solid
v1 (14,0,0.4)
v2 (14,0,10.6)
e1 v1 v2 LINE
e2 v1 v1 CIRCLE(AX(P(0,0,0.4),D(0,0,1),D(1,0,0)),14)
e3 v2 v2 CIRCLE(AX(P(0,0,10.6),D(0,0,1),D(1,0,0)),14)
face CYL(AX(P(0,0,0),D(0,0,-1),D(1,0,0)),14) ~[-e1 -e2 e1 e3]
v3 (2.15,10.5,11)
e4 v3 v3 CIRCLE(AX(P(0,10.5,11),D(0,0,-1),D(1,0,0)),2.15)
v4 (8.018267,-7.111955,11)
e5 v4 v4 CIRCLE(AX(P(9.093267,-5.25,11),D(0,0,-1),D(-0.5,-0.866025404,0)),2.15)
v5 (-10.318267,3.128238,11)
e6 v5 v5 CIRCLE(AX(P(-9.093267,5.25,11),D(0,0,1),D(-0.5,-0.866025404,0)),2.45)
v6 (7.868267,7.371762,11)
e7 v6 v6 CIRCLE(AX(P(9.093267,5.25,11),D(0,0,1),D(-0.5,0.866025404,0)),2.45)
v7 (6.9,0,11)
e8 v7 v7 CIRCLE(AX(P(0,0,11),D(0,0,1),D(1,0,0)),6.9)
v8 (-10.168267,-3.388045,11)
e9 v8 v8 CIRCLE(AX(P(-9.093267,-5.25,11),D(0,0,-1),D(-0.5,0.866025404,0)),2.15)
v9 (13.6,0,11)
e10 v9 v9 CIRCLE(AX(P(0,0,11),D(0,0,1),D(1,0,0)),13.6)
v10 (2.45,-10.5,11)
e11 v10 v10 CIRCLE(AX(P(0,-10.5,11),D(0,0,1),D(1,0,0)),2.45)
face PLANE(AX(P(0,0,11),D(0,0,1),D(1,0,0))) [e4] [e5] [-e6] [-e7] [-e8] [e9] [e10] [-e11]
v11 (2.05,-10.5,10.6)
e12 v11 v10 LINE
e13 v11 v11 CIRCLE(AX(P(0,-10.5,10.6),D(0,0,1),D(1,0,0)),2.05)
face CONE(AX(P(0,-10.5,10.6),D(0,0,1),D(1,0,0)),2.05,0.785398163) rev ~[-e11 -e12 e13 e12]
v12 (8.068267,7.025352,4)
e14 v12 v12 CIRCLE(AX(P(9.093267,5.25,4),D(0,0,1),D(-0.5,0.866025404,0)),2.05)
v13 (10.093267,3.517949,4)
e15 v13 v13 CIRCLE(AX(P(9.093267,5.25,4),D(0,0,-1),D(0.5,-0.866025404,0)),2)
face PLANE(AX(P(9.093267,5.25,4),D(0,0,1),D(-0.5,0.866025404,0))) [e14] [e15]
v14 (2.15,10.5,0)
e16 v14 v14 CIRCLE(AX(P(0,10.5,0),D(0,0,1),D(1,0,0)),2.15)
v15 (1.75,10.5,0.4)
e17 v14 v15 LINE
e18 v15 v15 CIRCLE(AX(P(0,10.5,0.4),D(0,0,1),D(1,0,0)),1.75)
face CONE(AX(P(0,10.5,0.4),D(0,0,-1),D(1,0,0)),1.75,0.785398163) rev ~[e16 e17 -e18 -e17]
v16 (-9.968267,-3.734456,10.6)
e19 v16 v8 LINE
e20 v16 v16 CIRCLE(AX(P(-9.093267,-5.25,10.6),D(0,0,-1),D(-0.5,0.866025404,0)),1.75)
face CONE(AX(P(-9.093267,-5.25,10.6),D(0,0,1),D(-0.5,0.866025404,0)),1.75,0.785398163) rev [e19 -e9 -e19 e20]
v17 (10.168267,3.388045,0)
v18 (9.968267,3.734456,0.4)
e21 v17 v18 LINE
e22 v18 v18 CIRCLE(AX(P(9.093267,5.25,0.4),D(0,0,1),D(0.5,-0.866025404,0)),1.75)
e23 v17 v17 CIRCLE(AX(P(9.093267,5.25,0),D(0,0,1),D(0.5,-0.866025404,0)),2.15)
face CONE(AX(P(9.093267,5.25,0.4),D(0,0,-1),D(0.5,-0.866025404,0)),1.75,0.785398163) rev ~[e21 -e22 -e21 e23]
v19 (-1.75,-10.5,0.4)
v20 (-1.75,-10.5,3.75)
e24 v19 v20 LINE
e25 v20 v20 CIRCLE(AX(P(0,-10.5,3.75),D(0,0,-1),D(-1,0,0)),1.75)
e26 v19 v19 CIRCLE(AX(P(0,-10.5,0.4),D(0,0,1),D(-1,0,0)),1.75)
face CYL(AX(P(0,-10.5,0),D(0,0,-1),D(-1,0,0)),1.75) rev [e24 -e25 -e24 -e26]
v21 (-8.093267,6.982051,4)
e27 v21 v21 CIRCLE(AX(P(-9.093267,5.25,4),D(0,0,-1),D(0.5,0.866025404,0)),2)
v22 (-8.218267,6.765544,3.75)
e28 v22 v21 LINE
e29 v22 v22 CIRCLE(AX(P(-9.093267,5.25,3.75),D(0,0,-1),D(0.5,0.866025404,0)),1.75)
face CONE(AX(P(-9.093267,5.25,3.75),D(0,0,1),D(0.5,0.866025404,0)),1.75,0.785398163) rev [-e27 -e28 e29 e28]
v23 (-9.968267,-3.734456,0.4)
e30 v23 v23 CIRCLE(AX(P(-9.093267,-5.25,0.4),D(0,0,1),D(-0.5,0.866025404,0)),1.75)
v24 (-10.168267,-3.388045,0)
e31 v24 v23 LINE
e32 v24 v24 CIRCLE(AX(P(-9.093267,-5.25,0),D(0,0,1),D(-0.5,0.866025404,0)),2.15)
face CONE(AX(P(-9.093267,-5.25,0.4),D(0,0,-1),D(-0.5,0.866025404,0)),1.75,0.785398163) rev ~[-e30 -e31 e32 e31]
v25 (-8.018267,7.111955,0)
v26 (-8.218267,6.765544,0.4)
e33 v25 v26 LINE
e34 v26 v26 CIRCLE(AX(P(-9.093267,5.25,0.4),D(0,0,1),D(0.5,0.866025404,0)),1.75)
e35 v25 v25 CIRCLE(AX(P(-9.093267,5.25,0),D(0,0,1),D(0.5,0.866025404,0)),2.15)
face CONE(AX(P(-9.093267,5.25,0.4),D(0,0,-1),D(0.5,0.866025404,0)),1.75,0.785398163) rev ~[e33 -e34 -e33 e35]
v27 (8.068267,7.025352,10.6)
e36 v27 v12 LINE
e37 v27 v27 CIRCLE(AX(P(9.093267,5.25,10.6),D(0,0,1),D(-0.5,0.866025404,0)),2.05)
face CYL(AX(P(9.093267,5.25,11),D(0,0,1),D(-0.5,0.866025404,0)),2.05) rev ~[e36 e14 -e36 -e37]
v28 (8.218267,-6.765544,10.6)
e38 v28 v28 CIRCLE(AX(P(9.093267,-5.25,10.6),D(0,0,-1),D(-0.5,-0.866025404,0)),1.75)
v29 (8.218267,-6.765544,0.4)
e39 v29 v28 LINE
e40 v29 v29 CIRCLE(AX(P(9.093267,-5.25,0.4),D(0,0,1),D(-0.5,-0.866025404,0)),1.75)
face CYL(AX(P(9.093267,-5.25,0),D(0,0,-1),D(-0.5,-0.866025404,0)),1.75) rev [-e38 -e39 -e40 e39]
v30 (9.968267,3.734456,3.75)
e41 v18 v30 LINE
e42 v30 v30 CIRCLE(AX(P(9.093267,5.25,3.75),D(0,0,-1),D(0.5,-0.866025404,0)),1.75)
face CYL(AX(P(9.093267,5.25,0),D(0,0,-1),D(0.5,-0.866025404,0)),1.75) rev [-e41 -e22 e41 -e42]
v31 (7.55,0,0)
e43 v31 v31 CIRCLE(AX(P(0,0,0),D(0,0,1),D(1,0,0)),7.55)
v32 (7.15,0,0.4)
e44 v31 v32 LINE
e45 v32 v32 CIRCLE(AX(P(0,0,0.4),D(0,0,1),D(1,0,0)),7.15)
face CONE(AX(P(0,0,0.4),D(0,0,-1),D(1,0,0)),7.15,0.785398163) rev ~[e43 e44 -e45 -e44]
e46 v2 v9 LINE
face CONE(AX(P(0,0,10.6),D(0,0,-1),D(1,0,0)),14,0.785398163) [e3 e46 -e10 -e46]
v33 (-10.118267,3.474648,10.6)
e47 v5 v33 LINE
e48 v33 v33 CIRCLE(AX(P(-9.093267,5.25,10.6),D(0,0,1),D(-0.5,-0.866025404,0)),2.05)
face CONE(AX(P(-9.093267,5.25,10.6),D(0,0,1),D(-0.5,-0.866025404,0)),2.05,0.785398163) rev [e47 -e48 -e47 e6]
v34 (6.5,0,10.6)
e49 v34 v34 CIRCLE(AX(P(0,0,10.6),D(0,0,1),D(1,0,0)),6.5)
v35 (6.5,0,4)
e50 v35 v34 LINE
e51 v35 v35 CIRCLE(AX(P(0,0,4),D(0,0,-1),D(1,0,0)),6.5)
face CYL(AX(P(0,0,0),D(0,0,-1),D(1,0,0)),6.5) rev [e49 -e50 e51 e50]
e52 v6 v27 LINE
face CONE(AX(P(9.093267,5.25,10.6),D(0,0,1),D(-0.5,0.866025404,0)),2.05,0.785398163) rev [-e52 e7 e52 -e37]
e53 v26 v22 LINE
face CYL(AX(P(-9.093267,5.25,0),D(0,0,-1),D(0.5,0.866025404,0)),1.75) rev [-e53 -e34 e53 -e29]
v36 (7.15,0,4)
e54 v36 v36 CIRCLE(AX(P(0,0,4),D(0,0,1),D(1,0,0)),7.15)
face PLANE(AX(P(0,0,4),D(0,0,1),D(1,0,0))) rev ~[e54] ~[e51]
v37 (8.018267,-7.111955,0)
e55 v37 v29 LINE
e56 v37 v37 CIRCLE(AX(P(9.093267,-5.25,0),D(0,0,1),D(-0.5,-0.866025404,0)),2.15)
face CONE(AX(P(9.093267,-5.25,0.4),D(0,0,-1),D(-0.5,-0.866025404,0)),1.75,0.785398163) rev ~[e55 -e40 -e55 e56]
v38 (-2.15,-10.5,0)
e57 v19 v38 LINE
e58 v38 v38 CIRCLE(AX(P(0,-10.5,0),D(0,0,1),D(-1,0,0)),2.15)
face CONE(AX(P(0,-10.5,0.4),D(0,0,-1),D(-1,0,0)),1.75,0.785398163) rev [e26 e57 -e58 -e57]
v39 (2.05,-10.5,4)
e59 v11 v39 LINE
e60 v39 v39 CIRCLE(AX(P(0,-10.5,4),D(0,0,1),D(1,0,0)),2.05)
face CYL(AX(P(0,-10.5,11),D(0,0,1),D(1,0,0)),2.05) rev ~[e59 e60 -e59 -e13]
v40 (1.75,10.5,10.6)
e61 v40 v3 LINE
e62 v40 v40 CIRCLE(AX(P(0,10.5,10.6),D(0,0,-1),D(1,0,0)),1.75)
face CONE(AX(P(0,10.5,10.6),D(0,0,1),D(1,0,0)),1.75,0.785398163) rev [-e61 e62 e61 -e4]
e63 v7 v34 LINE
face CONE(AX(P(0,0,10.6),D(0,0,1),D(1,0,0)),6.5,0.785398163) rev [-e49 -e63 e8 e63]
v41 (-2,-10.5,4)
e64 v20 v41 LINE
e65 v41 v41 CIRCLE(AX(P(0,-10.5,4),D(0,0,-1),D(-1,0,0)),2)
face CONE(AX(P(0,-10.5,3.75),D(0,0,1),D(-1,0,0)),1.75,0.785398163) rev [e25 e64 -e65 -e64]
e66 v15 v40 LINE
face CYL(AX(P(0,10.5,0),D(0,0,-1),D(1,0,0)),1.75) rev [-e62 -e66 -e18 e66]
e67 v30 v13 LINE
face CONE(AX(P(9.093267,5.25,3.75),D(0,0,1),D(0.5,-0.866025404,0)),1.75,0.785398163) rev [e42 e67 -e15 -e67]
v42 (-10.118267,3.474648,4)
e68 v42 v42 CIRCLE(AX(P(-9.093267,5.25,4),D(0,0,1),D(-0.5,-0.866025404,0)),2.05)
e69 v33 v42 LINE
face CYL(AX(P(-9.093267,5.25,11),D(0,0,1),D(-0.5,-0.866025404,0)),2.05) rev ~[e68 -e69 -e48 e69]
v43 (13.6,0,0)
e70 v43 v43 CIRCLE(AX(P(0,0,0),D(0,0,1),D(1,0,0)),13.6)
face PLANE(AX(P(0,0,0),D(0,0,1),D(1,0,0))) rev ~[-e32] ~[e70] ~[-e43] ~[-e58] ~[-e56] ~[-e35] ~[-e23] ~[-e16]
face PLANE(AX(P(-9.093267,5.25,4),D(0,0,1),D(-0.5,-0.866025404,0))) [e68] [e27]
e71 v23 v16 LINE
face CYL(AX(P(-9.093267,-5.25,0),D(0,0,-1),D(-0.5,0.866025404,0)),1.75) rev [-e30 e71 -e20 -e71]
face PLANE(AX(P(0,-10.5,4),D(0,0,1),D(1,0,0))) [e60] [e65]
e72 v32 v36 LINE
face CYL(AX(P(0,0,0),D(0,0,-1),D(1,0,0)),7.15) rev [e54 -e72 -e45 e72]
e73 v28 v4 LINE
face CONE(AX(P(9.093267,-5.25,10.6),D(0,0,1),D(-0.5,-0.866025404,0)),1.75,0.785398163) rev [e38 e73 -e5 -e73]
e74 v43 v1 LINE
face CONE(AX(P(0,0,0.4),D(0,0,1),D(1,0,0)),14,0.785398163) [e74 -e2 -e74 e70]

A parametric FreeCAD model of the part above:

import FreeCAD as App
import Part
import Sketcher


def edges_at(feature, points):
    """Names of the edges that pass closest to the given points."""
    edges = feature.Shape.Edges
    near = lambda p: min(range(len(edges)), key=lambda i: edges[i].distToShape(Part.Vertex(*p))[0])
    return sorted({f"Edge{near(p) + 1}" for p in points})

doc = App.newDocument("Part")
body = doc.addObject("PartDesign::Body", "Body")

# Sketch on XY plane
sketch1 = body.newObject("Sketcher::SketchObject", "Sketch")
sketch1.AttachmentSupport = (doc.getObject("XY_Plane"), [""])
sketch1.MapMode = "FlatFace"
sketch1.addGeometry(Part.Circle(App.Vector(0, 0, 0), App.Vector(0, 0, 1), 14), False)
sketch1.addGeometry(Part.Circle(App.Vector(0, 0, 0), App.Vector(0, 0, 1), 6.5), False)
sketch1.addConstraint(Sketcher.Constraint("Coincident", 0, 3, -1, 1))
sketch1.addConstraint(Sketcher.Constraint("Coincident", 1, 3, -1, 1))
sketch1.addConstraint(Sketcher.Constraint("Diameter", 0, 28.0))
sketch1.addConstraint(Sketcher.Constraint("Diameter", 1, 13.0))
pad1 = body.newObject("PartDesign::Pad", "Pad")
pad1.Profile = sketch1
pad1.Length = 11

# Sketch on XY plane
sketch2 = body.newObject("Sketcher::SketchObject", "Sketch001")
sketch2.AttachmentSupport = (doc.getObject("XY_Plane"), [""])
sketch2.MapMode = "FlatFace"
sketch2.addGeometry(Part.Circle(App.Vector(0, 0, 0), App.Vector(0, 0, 1), 7.15), False)
sketch2.addConstraint(Sketcher.Constraint("Coincident", 0, 3, -1, 1))
sketch2.addConstraint(Sketcher.Constraint("Diameter", 0, 14.3))
pocket1 = body.newObject("PartDesign::Pocket", "Pocket")
pocket1.Profile = sketch2
pocket1.Length = 4
pocket1.Reversed = True

# Sketch on XY plane
sketch3 = body.newObject("Sketcher::SketchObject", "Sketch002")
sketch3.AttachmentSupport = (doc.getObject("XY_Plane"), [""])
sketch3.MapMode = "FlatFace"
sketch3.addGeometry(Part.Circle(App.Vector(0, 10.5, 0), App.Vector(0, 0, 1), 1.75), False)
sketch3.addConstraint(Sketcher.Constraint("PointOnObject", 0, 3, -2))
sketch3.addConstraint(Sketcher.Constraint("Diameter", 0, 3.5))
sketch3.addConstraint(Sketcher.Constraint("DistanceY", -1, 1, 0, 3, 10.5))
pocket2 = body.newObject("PartDesign::Pocket", "Pocket001")
pocket2.Profile = sketch3
pocket2.Type = "ThroughAll"
pocket2.Reversed = True
doc.recompute()

polarpattern = body.newObject("PartDesign::PolarPattern", "PolarPattern")
polarpattern.Originals = [pocket2]
polarpattern.Axis = (doc.getObject("Z_Axis"), [""])
polarpattern.Angle = 360
polarpattern.Occurrences = 6
body.Tip = polarpattern

# Sketch on XY plane
sketch4 = body.newObject("Sketcher::SketchObject", "Sketch003")
sketch4.AttachmentSupport = (doc.getObject("XY_Plane"), [""])
sketch4.MapMode = "FlatFace"
sketch4.AttachmentOffset = App.Placement(App.Vector(0, 0, 11), App.Rotation())
sketch4.addGeometry(Part.Circle(App.Vector(0, -10.5, 0), App.Vector(0, 0, 1), 2.05), False)
sketch4.addConstraint(Sketcher.Constraint("PointOnObject", 0, 3, -2))
sketch4.addConstraint(Sketcher.Constraint("Diameter", 0, 4.1))
sketch4.addConstraint(Sketcher.Constraint("DistanceY", 0, 3, -1, 1, 10.5))
pocket3 = body.newObject("PartDesign::Pocket", "Pocket002")
pocket3.Profile = sketch4
pocket3.Length = 7
doc.recompute()

polarpattern2 = body.newObject("PartDesign::PolarPattern", "PolarPattern001")
polarpattern2.Originals = [pocket3]
polarpattern2.Axis = (doc.getObject("Z_Axis"), [""])
polarpattern2.Angle = 360
polarpattern2.Occurrences = 3
body.Tip = polarpattern2
doc.recompute()

chamfer = body.newObject("PartDesign::Chamfer", "Chamfer")
chamfer.Base = (polarpattern2, edges_at(polarpattern2, [(1.75, -10.5, 4), (8.218, 6.766, 4), (-9.968, 3.734, 4)]))
chamfer.Size = 0.25
doc.recompute()

chamfer2 = body.newObject("PartDesign::Chamfer", "Chamfer001")
chamfer2.Base = (chamfer, edges_at(chamfer, [
    (-14, 0, 11),
    (-8.218, -6.766, 11),
    (-2.05, -10.5, 11),
    (9.968, -3.734, 11),
    (-8.068, 7.025, 11),
    (-6.5, 0, 11),
    (10.118, 3.475, 11),
    (-1.75, 10.5, 11),
    (-14, 0, 0),
    (1.75, -10.5, 0),
    (-8.218, -6.766, 0),
    (-7.15, 0, 0),
    (9.968, -3.734, 0),
    (-9.968, 3.734, 0),
    (-1.75, 10.5, 0),
    (8.218, 6.766, 0),
]))
chamfer2.Size = 0.4

doc.recompute()
